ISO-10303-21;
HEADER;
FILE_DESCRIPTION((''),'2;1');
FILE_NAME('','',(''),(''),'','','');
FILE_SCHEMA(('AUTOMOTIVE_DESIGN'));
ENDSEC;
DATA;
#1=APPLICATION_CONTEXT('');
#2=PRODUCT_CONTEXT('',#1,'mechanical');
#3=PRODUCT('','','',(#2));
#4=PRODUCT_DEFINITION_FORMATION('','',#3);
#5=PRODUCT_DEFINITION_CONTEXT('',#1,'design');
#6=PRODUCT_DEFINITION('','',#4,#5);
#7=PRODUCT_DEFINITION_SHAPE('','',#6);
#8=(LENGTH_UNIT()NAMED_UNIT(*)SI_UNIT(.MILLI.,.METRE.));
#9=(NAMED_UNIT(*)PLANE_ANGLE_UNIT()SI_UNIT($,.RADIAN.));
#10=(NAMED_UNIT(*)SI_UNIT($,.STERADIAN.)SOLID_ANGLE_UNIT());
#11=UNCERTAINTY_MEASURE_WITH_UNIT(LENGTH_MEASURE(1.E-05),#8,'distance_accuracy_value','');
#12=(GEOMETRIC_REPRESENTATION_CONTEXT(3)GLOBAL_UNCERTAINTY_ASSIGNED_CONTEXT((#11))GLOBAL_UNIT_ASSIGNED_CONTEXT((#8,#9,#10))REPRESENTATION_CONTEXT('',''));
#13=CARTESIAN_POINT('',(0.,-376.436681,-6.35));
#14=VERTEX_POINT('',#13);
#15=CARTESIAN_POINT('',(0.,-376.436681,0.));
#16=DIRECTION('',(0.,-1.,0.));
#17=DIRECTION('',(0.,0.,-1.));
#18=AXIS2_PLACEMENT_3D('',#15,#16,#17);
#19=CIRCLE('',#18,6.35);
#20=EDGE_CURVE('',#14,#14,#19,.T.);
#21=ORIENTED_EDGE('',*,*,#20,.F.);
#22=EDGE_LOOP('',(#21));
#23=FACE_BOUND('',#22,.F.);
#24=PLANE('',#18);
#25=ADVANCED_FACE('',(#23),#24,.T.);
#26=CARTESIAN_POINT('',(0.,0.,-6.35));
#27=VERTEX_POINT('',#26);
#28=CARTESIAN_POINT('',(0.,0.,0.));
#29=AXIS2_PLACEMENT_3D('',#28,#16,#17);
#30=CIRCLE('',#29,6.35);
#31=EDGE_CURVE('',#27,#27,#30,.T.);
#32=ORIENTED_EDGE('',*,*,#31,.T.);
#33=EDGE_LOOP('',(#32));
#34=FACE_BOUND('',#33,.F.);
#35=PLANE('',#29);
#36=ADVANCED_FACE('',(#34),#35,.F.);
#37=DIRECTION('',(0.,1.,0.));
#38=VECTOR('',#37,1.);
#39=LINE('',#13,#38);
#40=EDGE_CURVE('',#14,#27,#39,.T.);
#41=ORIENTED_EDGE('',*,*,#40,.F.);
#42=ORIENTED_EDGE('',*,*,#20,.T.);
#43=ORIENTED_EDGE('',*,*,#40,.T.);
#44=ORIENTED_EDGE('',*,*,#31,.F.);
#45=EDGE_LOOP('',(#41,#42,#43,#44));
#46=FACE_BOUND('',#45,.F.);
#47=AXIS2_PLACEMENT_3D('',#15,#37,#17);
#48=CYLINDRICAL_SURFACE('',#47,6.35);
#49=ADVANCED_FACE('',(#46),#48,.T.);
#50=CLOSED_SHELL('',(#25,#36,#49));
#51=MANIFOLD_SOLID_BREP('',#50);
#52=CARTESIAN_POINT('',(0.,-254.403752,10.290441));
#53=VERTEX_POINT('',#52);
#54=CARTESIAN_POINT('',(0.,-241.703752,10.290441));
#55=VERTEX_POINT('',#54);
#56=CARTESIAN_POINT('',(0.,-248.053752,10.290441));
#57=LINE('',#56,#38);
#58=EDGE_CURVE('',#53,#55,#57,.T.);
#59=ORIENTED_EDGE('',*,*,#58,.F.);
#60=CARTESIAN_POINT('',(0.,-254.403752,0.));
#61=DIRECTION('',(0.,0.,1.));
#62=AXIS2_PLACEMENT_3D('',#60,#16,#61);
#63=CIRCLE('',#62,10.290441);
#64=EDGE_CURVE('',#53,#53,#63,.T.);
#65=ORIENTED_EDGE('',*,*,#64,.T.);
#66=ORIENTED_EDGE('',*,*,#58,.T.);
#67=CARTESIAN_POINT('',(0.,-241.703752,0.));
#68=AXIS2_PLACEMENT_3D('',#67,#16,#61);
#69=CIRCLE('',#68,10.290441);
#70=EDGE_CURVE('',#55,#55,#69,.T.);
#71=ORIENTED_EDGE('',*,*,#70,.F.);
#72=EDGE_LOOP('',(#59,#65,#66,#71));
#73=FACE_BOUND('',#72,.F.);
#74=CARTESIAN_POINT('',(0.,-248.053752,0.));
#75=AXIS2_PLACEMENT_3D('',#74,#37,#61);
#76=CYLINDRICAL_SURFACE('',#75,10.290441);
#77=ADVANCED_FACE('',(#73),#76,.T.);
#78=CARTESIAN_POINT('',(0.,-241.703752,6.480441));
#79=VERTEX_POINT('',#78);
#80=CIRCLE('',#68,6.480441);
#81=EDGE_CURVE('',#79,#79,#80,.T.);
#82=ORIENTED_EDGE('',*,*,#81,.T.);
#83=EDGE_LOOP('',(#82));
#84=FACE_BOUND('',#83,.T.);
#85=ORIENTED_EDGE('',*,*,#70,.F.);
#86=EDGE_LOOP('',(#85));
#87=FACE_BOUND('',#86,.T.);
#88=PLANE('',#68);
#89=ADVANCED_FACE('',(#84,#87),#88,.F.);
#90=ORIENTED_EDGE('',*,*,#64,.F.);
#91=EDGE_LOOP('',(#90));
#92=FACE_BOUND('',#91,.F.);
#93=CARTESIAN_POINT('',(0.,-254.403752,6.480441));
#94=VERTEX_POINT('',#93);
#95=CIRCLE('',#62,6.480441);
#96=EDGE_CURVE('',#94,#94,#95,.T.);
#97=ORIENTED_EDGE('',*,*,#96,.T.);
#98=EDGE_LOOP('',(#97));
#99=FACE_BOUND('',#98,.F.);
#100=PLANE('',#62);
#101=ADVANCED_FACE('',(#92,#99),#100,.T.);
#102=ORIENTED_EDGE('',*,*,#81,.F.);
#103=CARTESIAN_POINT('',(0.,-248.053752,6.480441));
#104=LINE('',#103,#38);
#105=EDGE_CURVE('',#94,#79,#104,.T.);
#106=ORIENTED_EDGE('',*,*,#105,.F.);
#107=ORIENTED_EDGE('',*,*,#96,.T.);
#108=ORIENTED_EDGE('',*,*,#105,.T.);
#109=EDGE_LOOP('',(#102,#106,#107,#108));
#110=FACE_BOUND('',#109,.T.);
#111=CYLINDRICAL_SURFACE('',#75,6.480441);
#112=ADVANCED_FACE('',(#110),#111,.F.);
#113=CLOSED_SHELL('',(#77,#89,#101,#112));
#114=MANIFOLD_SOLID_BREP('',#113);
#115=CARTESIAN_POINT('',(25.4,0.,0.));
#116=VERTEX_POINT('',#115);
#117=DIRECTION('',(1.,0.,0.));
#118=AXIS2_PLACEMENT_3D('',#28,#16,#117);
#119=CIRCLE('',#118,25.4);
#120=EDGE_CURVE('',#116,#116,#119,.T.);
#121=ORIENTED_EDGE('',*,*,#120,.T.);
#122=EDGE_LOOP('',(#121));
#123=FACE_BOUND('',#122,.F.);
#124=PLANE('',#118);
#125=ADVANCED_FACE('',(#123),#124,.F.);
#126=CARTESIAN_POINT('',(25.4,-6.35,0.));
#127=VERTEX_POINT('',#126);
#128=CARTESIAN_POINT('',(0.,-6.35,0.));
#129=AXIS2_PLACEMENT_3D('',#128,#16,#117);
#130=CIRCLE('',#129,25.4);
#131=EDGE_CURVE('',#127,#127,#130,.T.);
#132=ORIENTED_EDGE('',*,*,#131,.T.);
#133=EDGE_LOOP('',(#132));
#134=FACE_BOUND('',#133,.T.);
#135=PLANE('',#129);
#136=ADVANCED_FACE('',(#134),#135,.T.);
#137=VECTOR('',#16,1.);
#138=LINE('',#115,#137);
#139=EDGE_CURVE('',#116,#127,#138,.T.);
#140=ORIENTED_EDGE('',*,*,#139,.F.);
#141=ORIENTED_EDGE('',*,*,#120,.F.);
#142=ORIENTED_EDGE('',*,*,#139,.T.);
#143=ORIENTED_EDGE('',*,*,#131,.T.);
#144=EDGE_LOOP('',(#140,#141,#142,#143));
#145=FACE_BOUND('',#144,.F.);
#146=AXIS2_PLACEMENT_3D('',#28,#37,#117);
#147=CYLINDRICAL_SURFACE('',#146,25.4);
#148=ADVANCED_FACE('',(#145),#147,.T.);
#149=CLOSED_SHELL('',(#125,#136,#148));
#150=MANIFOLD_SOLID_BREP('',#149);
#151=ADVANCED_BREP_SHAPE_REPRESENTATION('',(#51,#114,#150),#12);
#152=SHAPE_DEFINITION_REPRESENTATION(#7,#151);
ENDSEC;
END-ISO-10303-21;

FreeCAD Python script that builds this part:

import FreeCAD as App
import Part
import Sketcher
Q = App.Units.Quantity


def add_polygon(sketch, points):
    """Adds a closed chain of lines whose ends are joined by coincident constraints."""
    first, n = sketch.GeometryCount, len(points)
    for a, b in zip(points, points[1:] + points[:1]):
        sketch.addGeometry(Part.LineSegment(App.Vector(*a, 0), App.Vector(*b, 0)), False)
    for i in range(n):
        sketch.addConstraint(Sketcher.Constraint("Coincident", first + i, 2, first + (i + 1) % n, 1))

doc = App.newDocument("Part")
body = doc.addObject("PartDesign::Body", "Body")

# Sketch on YZ plane
sketch1 = doc.addObject("Sketcher::SketchObject", "Sketch")
body.addObject(sketch1)
sketch1.AttachmentSupport = (doc.YZ_Plane, [""])
sketch1.MapMode = "FlatFace"
add_polygon(sketch1, [(0, -6), (0, 0), (-376, 0), (-376, -6)])  # lines 0-3
sketch1.addConstraint(Sketcher.Constraint("Vertical", 0))
sketch1.addConstraint(Sketcher.Constraint("Horizontal", 1))
sketch1.addConstraint(Sketcher.Constraint("Vertical", 2))
sketch1.addConstraint(Sketcher.Constraint("Horizontal", 3))
sketch1.addConstraint(Sketcher.Constraint("Coincident", 0, 2, -1, 1))
sketch1.addConstraint(Sketcher.Constraint("DistanceY", 0, 1, 0, 2, Q("0.25 in")))
sketch1.addConstraint(Sketcher.Constraint("DistanceX", 1, 2, 1, 1, 376.436681))
revolution = doc.addObject("PartDesign::Revolution", "Revolution")
body.addObject(revolution)
revolution.Profile = sketch1
revolution.ReferenceAxis = (sketch1, ["H_Axis"])
revolution.Angle = 360
body2 = doc.addObject("PartDesign::Body", "Body001")

# Sketch on XZ plane
sketch2 = doc.addObject("Sketcher::SketchObject", "Sketch001")
body2.addObject(sketch2)
sketch2.AttachmentSupport = (doc.getObject("XZ_Plane001"), [""])
sketch2.MapMode = "FlatFace"
sketch2.addGeometry(Part.Circle(App.Vector(0, 0, 0), App.Vector(0, 0, 1), 25), False)
sketch2.addConstraint(Sketcher.Constraint("Coincident", 0, 3, -1, 1))
sketch2.addConstraint(Sketcher.Constraint("Diameter", 0, Q("2 in")))
pad1 = doc.addObject("PartDesign::Pad", "Pad")
body2.addObject(pad1)
pad1.Profile = sketch2
pad1.Length = Q("0.25 in")
body3 = doc.addObject("PartDesign::Body", "Body002")

# Sketch on YZ plane
sketch3 = doc.addObject("Sketcher::SketchObject", "Sketch002")
body3.addObject(sketch3)
sketch3.AttachmentSupport = (doc.getObject("YZ_Plane002"), [""])
sketch3.MapMode = "FlatFace"
add_polygon(sketch3, [(-254.4, 10.3), (-254.4, 6.5), (-241.7, 6.5), (-241.7, 10.3)])  # lines 0-3
sketch3.addConstraint(Sketcher.Constraint("Vertical", 0))
sketch3.addConstraint(Sketcher.Constraint("Horizontal", 1))
sketch3.addConstraint(Sketcher.Constraint("Vertical", 2))
sketch3.addConstraint(Sketcher.Constraint("Horizontal", 3))
sketch3.addConstraint(Sketcher.Constraint("DistanceX", 1, 1, 1, 2, Q("0.5 in")))
sketch3.addConstraint(Sketcher.Constraint("DistanceY", 0, 2, 0, 1, Q("0.15 in")))
sketch3.addConstraint(Sketcher.Constraint("DistanceX", 0, 2, -1, 1, 254.403752))
sketch3.addConstraint(Sketcher.Constraint("DistanceY", -1, 1, 0, 2, 6.480441))
revolution2 = doc.addObject("PartDesign::Revolution", "Revolution001")
body3.addObject(revolution2)
revolution2.Profile = sketch3
revolution2.ReferenceAxis = (sketch3, ["H_Axis"])
revolution2.Angle = 360

doc.recompute()
